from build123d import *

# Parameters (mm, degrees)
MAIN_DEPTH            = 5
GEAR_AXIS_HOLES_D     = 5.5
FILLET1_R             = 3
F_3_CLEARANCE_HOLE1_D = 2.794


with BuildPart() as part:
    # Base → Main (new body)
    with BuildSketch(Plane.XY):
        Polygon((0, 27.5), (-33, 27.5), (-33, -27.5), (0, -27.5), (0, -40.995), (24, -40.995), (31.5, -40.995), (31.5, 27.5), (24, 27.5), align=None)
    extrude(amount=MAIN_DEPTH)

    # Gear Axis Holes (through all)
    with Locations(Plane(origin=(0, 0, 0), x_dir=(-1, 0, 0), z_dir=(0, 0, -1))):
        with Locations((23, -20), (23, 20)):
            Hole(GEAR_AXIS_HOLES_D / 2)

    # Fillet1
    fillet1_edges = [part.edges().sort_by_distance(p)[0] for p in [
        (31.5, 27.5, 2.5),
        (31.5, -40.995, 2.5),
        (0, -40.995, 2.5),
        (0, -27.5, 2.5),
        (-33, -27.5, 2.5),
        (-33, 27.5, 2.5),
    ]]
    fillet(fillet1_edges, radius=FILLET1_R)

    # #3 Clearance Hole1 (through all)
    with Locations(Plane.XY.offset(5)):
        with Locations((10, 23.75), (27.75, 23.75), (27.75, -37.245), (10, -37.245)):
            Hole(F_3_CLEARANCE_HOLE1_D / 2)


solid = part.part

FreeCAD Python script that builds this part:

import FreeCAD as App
import Part
import Sketcher

V = App.Vector


def edges_at(feature, points):
    """Names of the edges that pass closest to the given points."""
    edges = feature.Shape.Edges
    near = lambda p: min(range(len(edges)), key=lambda i: edges[i].distToShape(Part.Vertex(*p))[0])
    return sorted({f"Edge{near(p) + 1}" for p in points})

doc = App.newDocument("Part")
body = doc.addObject("PartDesign::Body", "Body")

# Sketch on XY plane
sketch1 = doc.addObject("Sketcher::SketchObject", "Sketch")
body.addObject(sketch1)
sketch1.AttachmentSupport = (doc.XY_Plane, [""])
sketch1.MapMode = "FlatFace"
sketch1.addGeometry(Part.LineSegment(V(-33, 28, 0), V(-33, -28, 0)), False)
sketch1.addGeometry(Part.LineSegment(V(-33, -28, 0), V(0, -28, 0)), False)
sketch1.addGeometry(Part.LineSegment(V(0, -28, 0), V(0, -41, 0)), False)
sketch1.addGeometry(Part.LineSegment(V(0, -41, 0), V(32, -41, 0)), False)
sketch1.addGeometry(Part.LineSegment(V(32, -41, 0), V(32, 28, 0)), False)
sketch1.addGeometry(Part.LineSegment(V(32, 28, 0), V(-33, 28, 0)), False)
sketch1.addConstraint(Sketcher.Constraint("Coincident", 0, 2, 1, 1))
sketch1.addConstraint(Sketcher.Constraint("Coincident", 1, 2, 2, 1))
sketch1.addConstraint(Sketcher.Constraint("Coincident", 2, 2, 3, 1))
sketch1.addConstraint(Sketcher.Constraint("Coincident", 3, 2, 4, 1))
sketch1.addConstraint(Sketcher.Constraint("Coincident", 4, 2, 5, 1))
sketch1.addConstraint(Sketcher.Constraint("Coincident", 5, 2, 0, 1))
sketch1.addConstraint(Sketcher.Constraint("Vertical", 0))
sketch1.addConstraint(Sketcher.Constraint("Horizontal", 1))
sketch1.addConstraint(Sketcher.Constraint("Vertical", 2))
sketch1.addConstraint(Sketcher.Constraint("Horizontal", 3))
sketch1.addConstraint(Sketcher.Constraint("Vertical", 4))
sketch1.addConstraint(Sketcher.Constraint("Horizontal", 5))
sketch1.addConstraint(Sketcher.Constraint("PointOnObject", 1, 2, -2))
sketch1.addConstraint(Sketcher.Constraint("DistanceX", 1, 1, 1, 2, 33.0))
sketch1.addConstraint(Sketcher.Constraint("DistanceY", 0, 2, 0, 1, 55.0))
sketch1.addConstraint(Sketcher.Constraint("DistanceX", 3, 1, 3, 2, 31.5))
sketch1.addConstraint(Sketcher.Constraint("DistanceY", 0, 2, -1, 1, 27.5))
sketch1.addConstraint(Sketcher.Constraint("DistanceY", 2, 2, 2, 1, 13.495))
pad1 = doc.addObject("PartDesign::Pad", "Pad")
body.addObject(pad1)
pad1.Profile = sketch1
pad1.Length = 5

# Sketch on XY plane
sketch2 = doc.addObject("Sketcher::SketchObject", "Sketch001")
body.addObject(sketch2)
sketch2.AttachmentSupport = (doc.XY_Plane, [""])
sketch2.MapMode = "FlatFace"
sketch2.addGeometry(Part.Circle(V(-23, -20, 0), V(0, 0, 1), 2.8), False)
sketch2.addGeometry(Part.Circle(V(-23, 20, 0), V(0, 0, 1), 2.8), False)
sketch2.addConstraint(Sketcher.Constraint("Equal", 0, 1))
sketch2.addConstraint(Sketcher.Constraint("Symmetric", 0, 3, 1, 3, -1))
sketch2.addConstraint(Sketcher.Constraint("Diameter", 0, 5.5))
sketch2.addConstraint(Sketcher.Constraint("DistanceX", 0, 3, -1, 1, 23.0))
sketch2.addConstraint(Sketcher.Constraint("DistanceY", 0, 3, -1, 1, 20.0))
doc.recompute()
hole = doc.addObject("PartDesign::Hole", "Hole")
body.addObject(hole)
hole.Profile = sketch2
hole.ThreadType = "None"
hole.Diameter = 5.5
hole.DepthType = "ThroughAll"
hole.Reversed = True
doc.recompute()

fillet = doc.addObject("PartDesign::Fillet", "Fillet")
body.addObject(fillet)
fillet.Base = (hole, edges_at(hole, [
    (31.5, 27.5, 2.5),
    (31.5, -40.995, 2.5),
    (0, -40.995, 2.5),
    (0, -27.5, 2.5),
    (-33, -27.5, 2.5),
    (-33, 27.5, 2.5),
]))
fillet.Radius = 3

# Sketch on XY plane
sketch3 = doc.addObject("Sketcher::SketchObject", "Sketch002")
body.addObject(sketch3)
sketch3.AttachmentSupport = (doc.XY_Plane, [""])
sketch3.MapMode = "FlatFace"
sketch3.AttachmentOffset = App.Placement(V(0, 0, 5), App.Rotation())
sketch3.addGeometry(Part.Circle(V(10, 23.8, 0), V(0, 0, 1), 1.4), False)
sketch3.addGeometry(Part.Circle(V(27.8, 23.8, 0), V(0, 0, 1), 1.4), False)
sketch3.addGeometry(Part.Circle(V(27.8, -37.2, 0), V(0, 0, 1), 1.4), False)
sketch3.addGeometry(Part.Circle(V(10, -37.2, 0), V(0, 0, 1), 1.4), False)
sketch3.addConstraint(Sketcher.Constraint("Equal", 0, 1))
sketch3.addConstraint(Sketcher.Constraint("Equal", 1, 2))
sketch3.addConstraint(Sketcher.Constraint("Equal", 2, 3))
sketch3.addConstraint(Sketcher.Constraint("Horizontal", 0, 3, 1, 3))
sketch3.addConstraint(Sketcher.Constraint("Horizontal", 2, 3, 3, 3))
sketch3.addConstraint(Sketcher.Constraint("Vertical", 1, 3, 2, 3))
sketch3.addConstraint(Sketcher.Constraint("Vertical", 0, 3, 3, 3))
sketch3.addConstraint(Sketcher.Constraint("Diameter", 0, 2.794))
sketch3.addConstraint(Sketcher.Constraint("DistanceX", -1, 1, 0, 3, 10.0))
sketch3.addConstraint(Sketcher.Constraint("DistanceY", -1, 1, 0, 3, 23.75))
sketch3.addConstraint(Sketcher.Constraint("DistanceX", -1, 1, 1, 3, 27.75))
sketch3.addConstraint(Sketcher.Constraint("DistanceY", 2, 3, -1, 1, 37.245))
doc.recompute()
hole2 = doc.addObject("PartDesign::Hole", "Hole001")
body.addObject(hole2)
hole2.Profile = sketch3
hole2.ThreadType = "None"
hole2.Diameter = 2.794
hole2.DepthType = "ThroughAll"

doc.recompute()
